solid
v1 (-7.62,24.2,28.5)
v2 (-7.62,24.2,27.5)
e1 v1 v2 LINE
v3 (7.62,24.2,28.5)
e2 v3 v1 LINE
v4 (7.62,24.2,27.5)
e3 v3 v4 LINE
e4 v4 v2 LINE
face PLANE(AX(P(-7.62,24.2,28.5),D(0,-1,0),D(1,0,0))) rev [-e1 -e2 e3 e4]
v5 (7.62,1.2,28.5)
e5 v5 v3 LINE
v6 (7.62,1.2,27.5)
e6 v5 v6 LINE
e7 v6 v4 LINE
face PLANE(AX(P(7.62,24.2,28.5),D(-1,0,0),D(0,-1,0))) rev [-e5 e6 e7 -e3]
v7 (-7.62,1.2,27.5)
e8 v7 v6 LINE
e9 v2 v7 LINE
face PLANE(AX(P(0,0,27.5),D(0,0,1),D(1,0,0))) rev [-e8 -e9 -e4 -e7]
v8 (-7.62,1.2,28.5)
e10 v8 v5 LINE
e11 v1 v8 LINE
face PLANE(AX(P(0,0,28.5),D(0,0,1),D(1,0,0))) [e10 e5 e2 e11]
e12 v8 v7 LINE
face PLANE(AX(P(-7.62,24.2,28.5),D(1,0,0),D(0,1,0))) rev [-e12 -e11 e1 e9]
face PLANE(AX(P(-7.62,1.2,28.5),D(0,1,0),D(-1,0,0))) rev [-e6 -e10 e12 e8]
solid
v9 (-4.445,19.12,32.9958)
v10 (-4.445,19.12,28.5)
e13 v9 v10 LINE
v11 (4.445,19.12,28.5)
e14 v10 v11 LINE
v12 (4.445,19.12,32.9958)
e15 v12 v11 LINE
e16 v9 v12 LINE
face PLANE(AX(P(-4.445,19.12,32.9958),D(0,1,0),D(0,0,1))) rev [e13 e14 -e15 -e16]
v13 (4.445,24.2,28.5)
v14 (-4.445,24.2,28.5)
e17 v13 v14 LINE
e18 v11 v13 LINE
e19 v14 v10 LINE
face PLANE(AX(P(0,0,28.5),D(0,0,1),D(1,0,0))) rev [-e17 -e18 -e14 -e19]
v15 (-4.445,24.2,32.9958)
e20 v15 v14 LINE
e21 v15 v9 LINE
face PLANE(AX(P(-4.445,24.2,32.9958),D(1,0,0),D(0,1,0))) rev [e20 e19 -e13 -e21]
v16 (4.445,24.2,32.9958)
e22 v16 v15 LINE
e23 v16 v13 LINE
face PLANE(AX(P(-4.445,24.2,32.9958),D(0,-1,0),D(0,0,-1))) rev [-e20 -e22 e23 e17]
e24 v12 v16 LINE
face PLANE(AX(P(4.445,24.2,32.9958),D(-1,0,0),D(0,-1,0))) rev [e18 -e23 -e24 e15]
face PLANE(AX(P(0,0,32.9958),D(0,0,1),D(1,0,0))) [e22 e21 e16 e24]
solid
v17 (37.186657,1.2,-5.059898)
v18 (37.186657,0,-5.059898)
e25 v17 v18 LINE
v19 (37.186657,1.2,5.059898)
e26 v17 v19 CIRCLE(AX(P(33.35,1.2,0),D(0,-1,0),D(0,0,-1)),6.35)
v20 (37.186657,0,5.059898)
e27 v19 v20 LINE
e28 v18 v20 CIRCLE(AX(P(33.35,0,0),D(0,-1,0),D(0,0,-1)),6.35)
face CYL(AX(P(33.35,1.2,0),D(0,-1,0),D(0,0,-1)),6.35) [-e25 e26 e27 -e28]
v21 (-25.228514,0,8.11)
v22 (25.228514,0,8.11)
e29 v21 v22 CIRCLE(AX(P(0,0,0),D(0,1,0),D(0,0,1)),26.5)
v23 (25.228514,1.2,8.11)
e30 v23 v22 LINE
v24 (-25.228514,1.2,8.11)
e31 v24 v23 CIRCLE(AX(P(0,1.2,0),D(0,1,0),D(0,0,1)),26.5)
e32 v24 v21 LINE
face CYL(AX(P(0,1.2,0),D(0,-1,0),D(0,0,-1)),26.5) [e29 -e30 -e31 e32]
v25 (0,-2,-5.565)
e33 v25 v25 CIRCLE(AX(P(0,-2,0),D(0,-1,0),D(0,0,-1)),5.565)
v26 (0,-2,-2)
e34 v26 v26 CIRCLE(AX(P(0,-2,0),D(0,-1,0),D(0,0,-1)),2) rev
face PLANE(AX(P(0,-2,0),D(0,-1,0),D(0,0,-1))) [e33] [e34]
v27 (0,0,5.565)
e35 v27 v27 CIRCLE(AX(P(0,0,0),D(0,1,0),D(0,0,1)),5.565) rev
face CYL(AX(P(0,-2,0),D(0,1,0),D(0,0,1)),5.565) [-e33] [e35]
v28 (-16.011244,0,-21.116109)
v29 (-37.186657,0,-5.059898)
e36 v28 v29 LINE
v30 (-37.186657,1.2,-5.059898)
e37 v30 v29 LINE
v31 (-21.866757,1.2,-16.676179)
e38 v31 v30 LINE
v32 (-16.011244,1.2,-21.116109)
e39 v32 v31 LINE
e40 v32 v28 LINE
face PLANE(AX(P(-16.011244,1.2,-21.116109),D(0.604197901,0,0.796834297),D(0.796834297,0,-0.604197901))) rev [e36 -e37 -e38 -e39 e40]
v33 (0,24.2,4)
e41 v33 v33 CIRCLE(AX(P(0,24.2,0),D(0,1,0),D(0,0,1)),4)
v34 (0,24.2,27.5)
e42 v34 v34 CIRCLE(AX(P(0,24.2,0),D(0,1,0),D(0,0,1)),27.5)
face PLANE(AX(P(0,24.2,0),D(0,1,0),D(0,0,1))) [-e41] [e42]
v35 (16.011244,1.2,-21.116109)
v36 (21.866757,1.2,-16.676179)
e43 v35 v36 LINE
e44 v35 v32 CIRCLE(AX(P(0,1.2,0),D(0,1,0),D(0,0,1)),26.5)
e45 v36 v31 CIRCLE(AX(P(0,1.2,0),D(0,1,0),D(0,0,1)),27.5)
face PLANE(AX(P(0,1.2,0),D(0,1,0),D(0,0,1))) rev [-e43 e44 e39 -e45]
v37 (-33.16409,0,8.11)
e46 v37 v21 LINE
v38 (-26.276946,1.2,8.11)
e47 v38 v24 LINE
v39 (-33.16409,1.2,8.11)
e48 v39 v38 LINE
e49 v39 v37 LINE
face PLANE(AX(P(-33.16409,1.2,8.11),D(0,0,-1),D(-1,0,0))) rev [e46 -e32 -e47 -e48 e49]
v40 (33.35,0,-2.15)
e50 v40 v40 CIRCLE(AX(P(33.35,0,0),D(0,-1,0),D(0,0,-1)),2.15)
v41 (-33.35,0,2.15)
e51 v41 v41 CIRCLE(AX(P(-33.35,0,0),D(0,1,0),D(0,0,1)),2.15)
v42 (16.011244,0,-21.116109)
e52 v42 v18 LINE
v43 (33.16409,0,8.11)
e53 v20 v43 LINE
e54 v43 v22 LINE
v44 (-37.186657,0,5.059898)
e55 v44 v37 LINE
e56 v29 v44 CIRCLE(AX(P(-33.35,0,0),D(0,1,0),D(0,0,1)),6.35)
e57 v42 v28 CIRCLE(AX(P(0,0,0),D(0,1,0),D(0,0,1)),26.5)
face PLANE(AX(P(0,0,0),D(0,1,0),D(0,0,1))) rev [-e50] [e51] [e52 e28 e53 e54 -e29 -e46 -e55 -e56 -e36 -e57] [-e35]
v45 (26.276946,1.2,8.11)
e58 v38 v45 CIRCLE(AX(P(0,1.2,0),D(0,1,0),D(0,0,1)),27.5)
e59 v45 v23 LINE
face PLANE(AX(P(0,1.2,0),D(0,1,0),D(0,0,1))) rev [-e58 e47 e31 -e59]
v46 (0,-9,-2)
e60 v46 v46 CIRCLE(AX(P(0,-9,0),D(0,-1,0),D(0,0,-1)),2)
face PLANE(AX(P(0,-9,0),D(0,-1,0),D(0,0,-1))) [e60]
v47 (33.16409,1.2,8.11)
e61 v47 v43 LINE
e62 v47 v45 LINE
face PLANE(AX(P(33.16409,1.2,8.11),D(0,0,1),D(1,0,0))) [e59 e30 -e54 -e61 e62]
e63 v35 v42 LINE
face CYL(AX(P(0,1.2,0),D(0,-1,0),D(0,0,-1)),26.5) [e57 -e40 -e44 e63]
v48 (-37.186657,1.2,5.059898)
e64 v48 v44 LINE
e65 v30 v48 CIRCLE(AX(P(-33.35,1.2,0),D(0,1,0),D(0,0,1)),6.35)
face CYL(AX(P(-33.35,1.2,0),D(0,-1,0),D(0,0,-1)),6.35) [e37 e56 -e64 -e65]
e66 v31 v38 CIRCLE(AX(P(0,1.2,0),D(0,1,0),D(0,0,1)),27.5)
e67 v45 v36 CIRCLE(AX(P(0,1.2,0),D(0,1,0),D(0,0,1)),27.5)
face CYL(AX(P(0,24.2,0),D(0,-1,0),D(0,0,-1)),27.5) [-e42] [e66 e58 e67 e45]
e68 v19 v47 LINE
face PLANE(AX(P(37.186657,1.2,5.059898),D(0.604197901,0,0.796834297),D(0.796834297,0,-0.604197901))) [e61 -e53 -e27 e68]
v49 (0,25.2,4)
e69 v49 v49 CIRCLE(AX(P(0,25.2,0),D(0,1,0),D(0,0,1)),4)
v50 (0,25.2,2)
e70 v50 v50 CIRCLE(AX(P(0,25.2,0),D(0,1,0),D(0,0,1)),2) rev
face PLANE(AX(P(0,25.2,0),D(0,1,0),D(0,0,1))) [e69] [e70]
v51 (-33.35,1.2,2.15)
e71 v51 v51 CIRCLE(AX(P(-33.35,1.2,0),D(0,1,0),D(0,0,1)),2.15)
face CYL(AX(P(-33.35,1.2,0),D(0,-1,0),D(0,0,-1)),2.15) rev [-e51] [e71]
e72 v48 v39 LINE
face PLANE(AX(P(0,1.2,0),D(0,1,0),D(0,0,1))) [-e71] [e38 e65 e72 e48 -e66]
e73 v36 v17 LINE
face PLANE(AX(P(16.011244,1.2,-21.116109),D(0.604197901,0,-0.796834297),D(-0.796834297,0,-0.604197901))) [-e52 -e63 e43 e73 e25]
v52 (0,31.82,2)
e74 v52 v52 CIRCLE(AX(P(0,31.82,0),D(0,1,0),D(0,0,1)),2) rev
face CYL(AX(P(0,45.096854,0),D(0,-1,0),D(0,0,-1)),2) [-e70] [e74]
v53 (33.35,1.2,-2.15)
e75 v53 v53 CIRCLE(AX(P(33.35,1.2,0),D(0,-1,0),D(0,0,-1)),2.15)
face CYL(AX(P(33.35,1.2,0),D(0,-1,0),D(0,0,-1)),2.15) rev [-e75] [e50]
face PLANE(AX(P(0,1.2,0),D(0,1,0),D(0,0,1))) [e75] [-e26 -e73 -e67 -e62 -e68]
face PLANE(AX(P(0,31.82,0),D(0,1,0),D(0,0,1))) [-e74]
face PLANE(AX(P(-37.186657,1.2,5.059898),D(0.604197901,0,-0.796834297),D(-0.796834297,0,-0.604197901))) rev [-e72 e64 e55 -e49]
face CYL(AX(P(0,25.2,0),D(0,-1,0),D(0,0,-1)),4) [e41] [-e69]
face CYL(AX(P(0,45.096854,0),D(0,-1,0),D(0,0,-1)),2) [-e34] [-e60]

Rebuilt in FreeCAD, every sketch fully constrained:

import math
import FreeCAD as App
import Part
import Sketcher

V = App.Vector


def add_polygon(sketch, points):
    """Adds a closed chain of lines whose ends are joined by coincident constraints."""
    first, n = sketch.GeometryCount, len(points)
    for a, b in zip(points, points[1:] + points[:1]):
        sketch.addGeometry(Part.LineSegment(App.Vector(*a, 0), App.Vector(*b, 0)), False)
    for i in range(n):
        sketch.addConstraint(Sketcher.Constraint("Coincident", first + i, 2, first + (i + 1) % n, 1))

doc = App.newDocument("Part")
body = doc.addObject("PartDesign::Body", "Body")

sketch1 = body.newObject("Sketcher::SketchObject", "Sketch")
sketch1.AttachmentSupport = (doc.getObject("XZ_Plane"), [""])
sketch1.MapMode = "FlatFace"
sketch1.addGeometry(Part.LineSegment(V(-16.011244, -21.116109, 0), V(-37.186657, -5.059898, 0)), False)
sketch1.addGeometry(Part.ArcOfCircle(Part.Circle(V(-33.35, 0, 0), V(0, 0, 1), 6.35), math.radians(127.171146), math.radians(232.828854)), False)
sketch1.addGeometry(Part.LineSegment(V(-37.186657, 5.059898, 0), V(-33.16409, 8.11, 0)), False)
sketch1.addGeometry(Part.LineSegment(V(-33.16409, 8.11, 0), V(-25.228514, 8.11, 0)), False)
sketch1.addGeometry(Part.ArcOfCircle(Part.Circle(V(0, 0, 0), V(0, 0, 1), 26.5), math.radians(17.820607), math.radians(162.179393)), False)
sketch1.addGeometry(Part.LineSegment(V(25.228514, 8.11, 0), V(33.16409, 8.11, 0)), False)
sketch1.addGeometry(Part.LineSegment(V(33.16409, 8.11, 0), V(37.186657, 5.059898, 0)), False)
sketch1.addGeometry(Part.ArcOfCircle(Part.Circle(V(33.35, 0, 0), V(0, 0, 1), 6.35), math.radians(-52.828854), math.radians(52.828854)), False)
sketch1.addGeometry(Part.LineSegment(V(37.186657, -5.059898, 0), V(16.011244, -21.116109, 0)), False)
sketch1.addGeometry(Part.ArcOfCircle(Part.Circle(V(0, 0, 0), V(0, 0, 1), 26.5), math.radians(-127.171146), math.radians(-52.828854)), False)
sketch1.addGeometry(Part.Circle(V(-33.35, 0, 0), V(0, 0, 1), 2.15), False)
sketch1.addGeometry(Part.Circle(V(33.35, 0, 0), V(0, 0, 1), 2.15), False)
sketch1.addConstraint(Sketcher.Constraint("Tangent", 0, 2, 1, 2))
sketch1.addConstraint(Sketcher.Constraint("Tangent", 1, 1, 2, 1))
sketch1.addConstraint(Sketcher.Constraint("Coincident", 2, 2, 3, 1))
sketch1.addConstraint(Sketcher.Constraint("Coincident", 3, 2, 4, 2))
sketch1.addConstraint(Sketcher.Constraint("Coincident", 4, 1, 5, 1))
sketch1.addConstraint(Sketcher.Constraint("Coincident", 5, 2, 6, 1))
sketch1.addConstraint(Sketcher.Constraint("Tangent", 6, 2, 7, 2))
sketch1.addConstraint(Sketcher.Constraint("Tangent", 7, 1, 8, 1))
sketch1.addConstraint(Sketcher.Constraint("Tangent", 8, 2, 9, 2))
sketch1.addConstraint(Sketcher.Constraint("Tangent", 9, 1, 0, 1))
sketch1.addConstraint(Sketcher.Constraint("Horizontal", 3))
sketch1.addConstraint(Sketcher.Constraint("Horizontal", 5))
sketch1.addConstraint(Sketcher.Constraint("Coincident", 4, 3, -1, 1))
sketch1.addConstraint(Sketcher.Constraint("Coincident", 9, 3, -1, 1))
sketch1.addConstraint(Sketcher.Constraint("Coincident", 10, 3, 1, 3))
sketch1.addConstraint(Sketcher.Constraint("Coincident", 11, 3, 7, 3))
sketch1.addConstraint(Sketcher.Constraint("Equal", 1, 7))
sketch1.addConstraint(Sketcher.Constraint("Equal", 4, 9))
sketch1.addConstraint(Sketcher.Constraint("Equal", 10, 11))
sketch1.addConstraint(Sketcher.Constraint("Symmetric", 1, 3, 7, 3, -1, 1))
sketch1.addConstraint(Sketcher.Constraint("Symmetric", 2, 2, 5, 2, -2))
sketch1.addConstraint(Sketcher.Constraint("Symmetric", 0, 2, 1, 1, -1))
sketch1.addConstraint(Sketcher.Constraint("Diameter", 10, 4.3))
sketch1.addConstraint(Sketcher.Constraint("Radius", 4, 26.5))
sketch1.addConstraint(Sketcher.Constraint("Radius", 1, 6.35))
sketch1.addConstraint(Sketcher.Constraint("DistanceX", 1, 3, 7, 3, 66.7))
sketch1.addConstraint(Sketcher.Constraint("DistanceY", -1, 1, 2, 2, 8.11))
pad1 = body.newObject("PartDesign::Pad", "Pad")
pad1.Profile = sketch1
pad1.Length = 1.2
pad1.Reversed = True

sketch2 = body.newObject("Sketcher::SketchObject", "Sketch001")
sketch2.AttachmentSupport = (doc.getObject("XZ_Plane"), [""])
sketch2.MapMode = "FlatFace"
sketch2.AttachmentOffset = App.Placement(V(0, 0, -1.2), App.Rotation())
sketch2.addGeometry(Part.Circle(V(0, 0, 0), V(0, 0, 1), 27.5), False)
sketch2.addConstraint(Sketcher.Constraint("Coincident", 0, 3, -1, 1))
sketch2.addConstraint(Sketcher.Constraint("Diameter", 0, 55.0))
pad2 = body.newObject("PartDesign::Pad", "Pad001")
pad2.Profile = sketch2
pad2.Length = 23
pad2.Reversed = True

sketch3 = body.newObject("Sketcher::SketchObject", "Sketch002")
sketch3.AttachmentSupport = (doc.getObject("XZ_Plane"), [""])
sketch3.MapMode = "FlatFace"
sketch3.addGeometry(Part.Circle(V(0, 0, 0), V(0, 0, 1), 2), False)
sketch3.addConstraint(Sketcher.Constraint("Coincident", 0, 3, -1, 1))
sketch3.addConstraint(Sketcher.Constraint("Diameter", 0, 4.0))
pad3 = body.newObject("PartDesign::Pad", "Pad002")
pad3.Profile = sketch3
pad3.Type = "TwoLengths"
pad3.Length = 9
pad3.Length2 = 31.82

sketch4 = body.newObject("Sketcher::SketchObject", "Sketch003")
sketch4.AttachmentSupport = (doc.getObject("XZ_Plane"), [""])
sketch4.MapMode = "FlatFace"
sketch4.addGeometry(Part.Circle(V(0, 0, 0), V(0, 0, 1), 5.565), False)
sketch4.addConstraint(Sketcher.Constraint("Coincident", 0, 3, -1, 1))
sketch4.addConstraint(Sketcher.Constraint("Diameter", 0, 11.13))
pad4 = body.newObject("PartDesign::Pad", "Pad003")
pad4.Profile = sketch4
pad4.Length = 2

sketch5 = body.newObject("Sketcher::SketchObject", "Sketch004")
sketch5.AttachmentSupport = (doc.getObject("XZ_Plane"), [""])
sketch5.MapMode = "FlatFace"
sketch5.AttachmentOffset = App.Placement(V(0, 0, -24.2), App.Rotation())
sketch5.addGeometry(Part.Circle(V(0, 0, 0), V(0, 0, 1), 4), False)
sketch5.addConstraint(Sketcher.Constraint("Coincident", 0, 3, -1, 1))
sketch5.addConstraint(Sketcher.Constraint("Diameter", 0, 8.0))
pad5 = body.newObject("PartDesign::Pad", "Pad004")
pad5.Profile = sketch5
pad5.Length = 1
pad5.Reversed = True
body2 = doc.addObject("PartDesign::Body", "Body001")

sketch6 = body2.newObject("Sketcher::SketchObject", "Sketch005")
sketch6.AttachmentSupport = (doc.getObject("XY_Plane001"), [""])
sketch6.MapMode = "FlatFace"
sketch6.AttachmentOffset = App.Placement(V(0, 0, 27.5), App.Rotation())
add_polygon(sketch6, [(-7.62, 24.2), (-7.62, 1.2), (7.62, 1.2), (7.62, 24.2)])
sketch6.addConstraint(Sketcher.Constraint("Vertical", 0))
sketch6.addConstraint(Sketcher.Constraint("Horizontal", 1))
sketch6.addConstraint(Sketcher.Constraint("Vertical", 2))
sketch6.addConstraint(Sketcher.Constraint("Horizontal", 3))
sketch6.addConstraint(Sketcher.Constraint("DistanceY", 0, 2, 0, 1, 23.0))
sketch6.addConstraint(Sketcher.Constraint("DistanceX", 1, 1, 1, 2, 15.24))
sketch6.addConstraint(Sketcher.Constraint("DistanceY", -1, 1, 0, 2, 1.2))
sketch6.addConstraint(Sketcher.Constraint("DistanceX", 0, 2, -1, 1, 7.62))
pad6 = body2.newObject("PartDesign::Pad", "Pad005")
pad6.Profile = sketch6
pad6.Length = 1
body3 = doc.addObject("PartDesign::Body", "Body002")

sketch7 = body3.newObject("Sketcher::SketchObject", "Sketch006")
sketch7.AttachmentSupport = (doc.getObject("XY_Plane002"), [""])
sketch7.MapMode = "FlatFace"
sketch7.AttachmentOffset = App.Placement(V(0, 0, 28.5), App.Rotation())
add_polygon(sketch7, [(-4.445, 24.2), (-4.445, 19.12), (4.445, 19.12), (4.445, 24.2)])
sketch7.addConstraint(Sketcher.Constraint("Vertical", 0))
sketch7.addConstraint(Sketcher.Constraint("Horizontal", 1))
sketch7.addConstraint(Sketcher.Constraint("Vertical", 2))
sketch7.addConstraint(Sketcher.Constraint("Horizontal", 3))
sketch7.addConstraint(Sketcher.Constraint("DistanceX", 1, 1, 1, 2, 8.89))
sketch7.addConstraint(Sketcher.Constraint("DistanceY", 0, 2, 0, 1, 5.08))
sketch7.addConstraint(Sketcher.Constraint("DistanceY", -1, 1, 2, 2, 24.2))
sketch7.addConstraint(Sketcher.Constraint("DistanceX", 0, 2, -1, 1, 4.445))
pad7 = body3.newObject("PartDesign::Pad", "Pad006")
pad7.Profile = sketch7
pad7.Length = 4.4958

doc.recompute()
